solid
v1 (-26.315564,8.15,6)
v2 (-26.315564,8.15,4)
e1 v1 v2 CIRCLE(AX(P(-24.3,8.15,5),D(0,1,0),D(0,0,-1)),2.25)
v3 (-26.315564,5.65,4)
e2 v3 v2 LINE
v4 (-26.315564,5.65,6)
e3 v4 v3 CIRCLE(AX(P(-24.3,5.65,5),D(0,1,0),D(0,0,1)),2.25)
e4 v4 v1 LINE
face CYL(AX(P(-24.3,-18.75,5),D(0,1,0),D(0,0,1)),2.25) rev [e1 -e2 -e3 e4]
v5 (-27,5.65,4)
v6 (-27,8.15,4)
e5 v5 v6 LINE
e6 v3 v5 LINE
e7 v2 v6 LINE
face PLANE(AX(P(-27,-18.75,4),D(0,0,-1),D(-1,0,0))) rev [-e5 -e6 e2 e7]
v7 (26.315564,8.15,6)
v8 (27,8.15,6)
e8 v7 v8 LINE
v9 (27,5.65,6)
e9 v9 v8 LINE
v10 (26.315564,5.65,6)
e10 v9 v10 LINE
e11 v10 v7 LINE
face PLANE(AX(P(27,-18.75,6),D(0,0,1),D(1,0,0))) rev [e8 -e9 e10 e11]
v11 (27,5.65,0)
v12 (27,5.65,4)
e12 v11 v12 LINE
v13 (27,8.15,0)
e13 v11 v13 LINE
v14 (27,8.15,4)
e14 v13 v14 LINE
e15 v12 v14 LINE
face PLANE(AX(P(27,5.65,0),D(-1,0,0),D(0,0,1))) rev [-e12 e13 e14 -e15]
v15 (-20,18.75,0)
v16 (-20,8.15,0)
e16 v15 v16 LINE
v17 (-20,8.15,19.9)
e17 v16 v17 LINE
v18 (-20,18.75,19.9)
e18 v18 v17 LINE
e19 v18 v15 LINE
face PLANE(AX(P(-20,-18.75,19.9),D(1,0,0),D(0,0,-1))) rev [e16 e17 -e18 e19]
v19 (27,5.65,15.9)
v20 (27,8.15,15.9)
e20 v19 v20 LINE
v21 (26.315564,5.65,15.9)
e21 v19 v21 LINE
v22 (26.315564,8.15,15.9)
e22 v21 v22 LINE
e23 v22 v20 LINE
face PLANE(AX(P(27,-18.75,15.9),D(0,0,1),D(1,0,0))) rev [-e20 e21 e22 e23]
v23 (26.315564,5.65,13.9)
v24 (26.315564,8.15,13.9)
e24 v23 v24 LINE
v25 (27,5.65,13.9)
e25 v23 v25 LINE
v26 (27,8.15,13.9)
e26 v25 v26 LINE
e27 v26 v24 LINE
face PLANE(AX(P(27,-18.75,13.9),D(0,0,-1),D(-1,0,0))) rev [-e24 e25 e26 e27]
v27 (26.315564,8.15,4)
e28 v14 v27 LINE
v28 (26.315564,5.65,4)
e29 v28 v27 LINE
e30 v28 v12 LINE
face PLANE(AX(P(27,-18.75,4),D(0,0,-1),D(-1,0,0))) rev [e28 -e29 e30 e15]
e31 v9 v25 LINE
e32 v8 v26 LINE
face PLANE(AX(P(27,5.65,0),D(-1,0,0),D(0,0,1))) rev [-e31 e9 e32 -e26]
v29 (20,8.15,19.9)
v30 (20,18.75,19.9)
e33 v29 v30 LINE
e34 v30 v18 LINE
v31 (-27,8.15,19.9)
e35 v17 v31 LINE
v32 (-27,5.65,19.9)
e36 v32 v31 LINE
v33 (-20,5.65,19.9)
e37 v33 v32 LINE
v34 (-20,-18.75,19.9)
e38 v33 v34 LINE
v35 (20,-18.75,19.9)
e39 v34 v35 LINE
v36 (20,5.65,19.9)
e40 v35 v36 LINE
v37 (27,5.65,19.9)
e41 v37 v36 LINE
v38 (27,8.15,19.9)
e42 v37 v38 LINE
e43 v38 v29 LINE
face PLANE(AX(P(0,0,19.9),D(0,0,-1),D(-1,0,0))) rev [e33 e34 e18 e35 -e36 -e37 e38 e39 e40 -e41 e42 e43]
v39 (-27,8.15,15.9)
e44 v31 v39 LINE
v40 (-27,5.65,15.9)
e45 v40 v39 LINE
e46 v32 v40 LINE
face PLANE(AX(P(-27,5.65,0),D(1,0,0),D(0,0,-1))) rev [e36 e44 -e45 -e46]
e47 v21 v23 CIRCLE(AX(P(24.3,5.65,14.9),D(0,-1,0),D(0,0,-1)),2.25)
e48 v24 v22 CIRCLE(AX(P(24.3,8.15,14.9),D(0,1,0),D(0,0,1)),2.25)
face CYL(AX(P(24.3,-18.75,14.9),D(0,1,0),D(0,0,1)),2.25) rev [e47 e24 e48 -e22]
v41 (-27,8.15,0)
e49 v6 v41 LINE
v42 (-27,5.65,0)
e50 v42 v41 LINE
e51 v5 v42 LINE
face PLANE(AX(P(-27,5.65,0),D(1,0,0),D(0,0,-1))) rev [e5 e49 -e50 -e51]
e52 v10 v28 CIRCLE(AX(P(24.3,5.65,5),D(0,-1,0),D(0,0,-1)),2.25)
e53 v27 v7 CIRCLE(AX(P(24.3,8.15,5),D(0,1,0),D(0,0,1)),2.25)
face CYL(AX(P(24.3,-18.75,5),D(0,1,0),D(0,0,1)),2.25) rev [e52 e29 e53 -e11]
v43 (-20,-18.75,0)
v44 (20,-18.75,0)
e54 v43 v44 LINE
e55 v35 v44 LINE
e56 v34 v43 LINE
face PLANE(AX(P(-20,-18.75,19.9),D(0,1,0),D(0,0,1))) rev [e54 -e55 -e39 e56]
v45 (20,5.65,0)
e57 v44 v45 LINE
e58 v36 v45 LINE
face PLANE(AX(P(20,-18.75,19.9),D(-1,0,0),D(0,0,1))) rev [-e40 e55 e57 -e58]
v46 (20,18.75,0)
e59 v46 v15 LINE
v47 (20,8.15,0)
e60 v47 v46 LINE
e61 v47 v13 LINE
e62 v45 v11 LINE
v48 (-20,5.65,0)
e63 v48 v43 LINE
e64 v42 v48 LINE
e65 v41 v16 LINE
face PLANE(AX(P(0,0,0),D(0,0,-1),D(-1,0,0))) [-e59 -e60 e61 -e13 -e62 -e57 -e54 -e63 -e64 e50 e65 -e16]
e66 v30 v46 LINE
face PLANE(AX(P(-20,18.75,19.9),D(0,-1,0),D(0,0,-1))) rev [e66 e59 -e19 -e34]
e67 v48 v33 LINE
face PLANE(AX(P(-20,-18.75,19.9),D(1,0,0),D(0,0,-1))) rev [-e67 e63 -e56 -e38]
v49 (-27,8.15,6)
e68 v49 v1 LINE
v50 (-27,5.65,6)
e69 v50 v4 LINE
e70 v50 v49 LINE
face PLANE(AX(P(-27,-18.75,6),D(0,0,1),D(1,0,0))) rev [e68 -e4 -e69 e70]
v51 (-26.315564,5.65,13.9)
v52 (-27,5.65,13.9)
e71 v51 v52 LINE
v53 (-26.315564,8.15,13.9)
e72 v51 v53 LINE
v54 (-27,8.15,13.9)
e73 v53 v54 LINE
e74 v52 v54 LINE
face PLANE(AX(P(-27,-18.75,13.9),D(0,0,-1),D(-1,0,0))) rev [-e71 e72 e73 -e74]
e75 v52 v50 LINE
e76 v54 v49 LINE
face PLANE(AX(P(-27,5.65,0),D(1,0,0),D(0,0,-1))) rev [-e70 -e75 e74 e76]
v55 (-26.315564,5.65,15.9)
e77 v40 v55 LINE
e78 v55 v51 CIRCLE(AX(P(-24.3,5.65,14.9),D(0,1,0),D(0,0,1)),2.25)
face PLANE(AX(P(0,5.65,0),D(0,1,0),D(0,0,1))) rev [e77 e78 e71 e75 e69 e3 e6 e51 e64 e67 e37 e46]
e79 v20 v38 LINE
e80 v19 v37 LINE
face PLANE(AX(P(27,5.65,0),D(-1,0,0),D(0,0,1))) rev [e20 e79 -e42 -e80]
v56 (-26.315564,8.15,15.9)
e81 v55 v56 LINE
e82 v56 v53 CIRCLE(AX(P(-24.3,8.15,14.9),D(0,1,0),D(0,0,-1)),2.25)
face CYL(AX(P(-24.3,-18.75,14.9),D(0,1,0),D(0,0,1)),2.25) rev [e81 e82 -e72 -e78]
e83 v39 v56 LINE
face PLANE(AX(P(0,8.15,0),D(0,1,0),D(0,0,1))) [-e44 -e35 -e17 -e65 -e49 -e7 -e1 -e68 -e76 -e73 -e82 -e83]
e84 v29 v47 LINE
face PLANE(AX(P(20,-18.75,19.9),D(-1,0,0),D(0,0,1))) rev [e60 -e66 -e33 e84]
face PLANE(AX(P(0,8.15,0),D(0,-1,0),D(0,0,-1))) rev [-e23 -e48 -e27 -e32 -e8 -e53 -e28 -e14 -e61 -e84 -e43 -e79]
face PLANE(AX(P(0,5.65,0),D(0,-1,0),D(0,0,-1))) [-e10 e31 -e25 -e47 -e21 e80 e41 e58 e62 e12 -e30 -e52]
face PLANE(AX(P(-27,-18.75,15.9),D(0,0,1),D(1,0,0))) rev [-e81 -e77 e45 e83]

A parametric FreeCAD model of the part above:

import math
import FreeCAD as App
import Part
import Sketcher
Q = App.Units.Quantity


def add_polygon(sketch, points):
    """Adds a closed chain of lines whose ends are joined by coincident constraints."""
    first, n = sketch.GeometryCount, len(points)
    for a, b in zip(points, points[1:] + points[:1]):
        sketch.addGeometry(Part.LineSegment(App.Vector(*a, 0), App.Vector(*b, 0)), False)
    for i in range(n):
        sketch.addConstraint(Sketcher.Constraint("Coincident", first + i, 2, first + (i + 1) % n, 1))

doc = App.newDocument("Part")
params = doc.addObject("Spreadsheet::Sheet", "Params")
for row, (alias, value) in enumerate([
    ("sketch1_width", "40 mm"),
    ("sketch1_height", "37.5 mm"),
    ("pad1_length", "19.9 mm"),
    ("sketch2_width", "7 mm"),
    ("sketch2_height", "19.9 mm"),
    ("pad2_length", "2.5 mm"),
    ("sketch3_height", "2 mm"),
    ("sketch3_radius", "2.25 mm"),
], start=1):
    params.set(f"A{row}", alias)
    params.set(f"B{row}", "=" + value)
    params.setAlias(f"B{row}", alias)

body = doc.addObject("PartDesign::Body", "Body")

sketch1 = doc.addObject("Sketcher::SketchObject", "Sketch")
body.addObject(sketch1)
sketch1.AttachmentSupport = (doc.XY_Plane, [""])
sketch1.MapMode = "FlatFace"
add_polygon(sketch1, [(-20, 19), (-20, -19), (20, -19), (20, 19)])
sketch1.addConstraint([
    Sketcher.Constraint("Vertical", 0),
    Sketcher.Constraint("Horizontal", 1),
    Sketcher.Constraint("Vertical", 2),
    Sketcher.Constraint("Horizontal", 3),
    Sketcher.Constraint("Symmetric", 0, 2, 2, 2, -1, 1),
    Sketcher.Constraint("DistanceX", 1, 1, 1, 2, Q("40 mm")),
    Sketcher.Constraint("DistanceY", 0, 2, 0, 1, Q("37.5 mm")),
])
sketch1.setExpression("Constraints[9]", "Params.sketch1_width")
sketch1.setExpression("Constraints[10]", "Params.sketch1_height")
pad1 = doc.addObject("PartDesign::Pad", "Pad")
body.addObject(pad1)
pad1.Profile = sketch1
pad1.setExpression("Length", "Params.pad1_length")

sketch2 = doc.addObject("Sketcher::SketchObject", "Sketch001")
body.addObject(sketch2)
sketch2.AttachmentSupport = (doc.XZ_Plane, [""])
sketch2.MapMode = "FlatFace"
sketch2.AttachmentOffset = App.Placement(App.Vector(0, 0, -8.15), App.Rotation())
add_polygon(sketch2, [(-20, 0), (-20, 20), (-27, 20), (-27, 0)])
add_polygon(sketch2, [(27, 0), (27, 20), (20, 20), (20, 0)])
sketch2.addConstraint([
    Sketcher.Constraint("Vertical", 0),
    Sketcher.Constraint("Horizontal", 1),
    Sketcher.Constraint("Vertical", 2),
    Sketcher.Constraint("Horizontal", 3),
    Sketcher.Constraint("Vertical", 4),
    Sketcher.Constraint("Horizontal", 5),
    Sketcher.Constraint("Vertical", 6),
    Sketcher.Constraint("Horizontal", 7),
    Sketcher.Constraint("Symmetric", 3, 2, 6, 2, -1, 1),
    Sketcher.Constraint("Symmetric", 1, 2, 4, 2, -2),
    Sketcher.Constraint("PointOnObject", 2, 2, -1),
    Sketcher.Constraint("DistanceX", 1, 2, 1, 1, Q("7 mm")),
    Sketcher.Constraint("DistanceY", 0, 1, 0, 2, Q("19.9 mm")),
    Sketcher.Constraint("DistanceX", 0, 2, -1, 1, Q("20 mm")),
])
sketch2.setExpression("Constraints[19]", "Params.sketch2_width")
sketch2.setExpression("Constraints[20]", "Params.sketch2_height")
pad2 = doc.addObject("PartDesign::Pad", "Pad001")
body.addObject(pad2)
pad2.Profile = sketch2
pad2.setExpression("Length", "Params.pad2_length")

sketch3 = doc.addObject("Sketcher::SketchObject", "Sketch002")
body.addObject(sketch3)
sketch3.AttachmentSupport = (doc.XZ_Plane, [""])
sketch3.MapMode = "FlatFace"
sketch3.AttachmentOffset = App.Placement(App.Vector(0, 0, -8.15), App.Rotation())
sketch3.addGeometry([
    Part.LineSegment(App.Vector(26.3, 15.9, 0), App.Vector(27, 15.9, 0)),
    Part.LineSegment(App.Vector(27, 15.9, 0), App.Vector(27, 13.9, 0)),
    Part.LineSegment(App.Vector(27, 13.9, 0), App.Vector(26.3, 13.9, 0)),
    Part.ArcOfCircle(Part.Circle(App.Vector(24.3, 14.9, 0), App.Vector(0, 0, 1), 2.2), math.radians(26), math.radians(334)),
    Part.LineSegment(App.Vector(26.3, 6, 0), App.Vector(27, 6, 0)),
    Part.LineSegment(App.Vector(27, 6, 0), App.Vector(27, 4, 0)),
    Part.LineSegment(App.Vector(27, 4, 0), App.Vector(26.3, 4, 0)),
    Part.ArcOfCircle(Part.Circle(App.Vector(24.3, 5, 0), App.Vector(0, 0, 1), 2.2), math.radians(26), math.radians(334)),
    Part.LineSegment(App.Vector(-27, 13.9, 0), App.Vector(-27, 15.9, 0)),
    Part.LineSegment(App.Vector(-27, 15.9, 0), App.Vector(-26.3, 15.9, 0)),
    Part.ArcOfCircle(Part.Circle(App.Vector(-24.3, 14.9, 0), App.Vector(0, 0, 1), 2.2), math.radians(-154), math.radians(154)),
    Part.LineSegment(App.Vector(-26.3, 13.9, 0), App.Vector(-27, 13.9, 0)),
    Part.LineSegment(App.Vector(-27, 4, 0), App.Vector(-27, 6, 0)),
    Part.LineSegment(App.Vector(-27, 6, 0), App.Vector(-26.3, 6, 0)),
    Part.ArcOfCircle(Part.Circle(App.Vector(-24.3, 5, 0), App.Vector(0, 0, 1), 2.2), math.radians(-154), math.radians(154)),
    Part.LineSegment(App.Vector(-26.3, 4, 0), App.Vector(-27, 4, 0)),
], False)
sketch3.addConstraint([
    Sketcher.Constraint("Coincident", 0, 2, 1, 1),
    Sketcher.Constraint("Coincident", 1, 2, 2, 1),
    Sketcher.Constraint("Coincident", 2, 2, 3, 2),
    Sketcher.Constraint("Coincident", 3, 1, 0, 1),
    Sketcher.Constraint("Coincident", 4, 2, 5, 1),
    Sketcher.Constraint("Coincident", 5, 2, 6, 1),
    Sketcher.Constraint("Coincident", 6, 2, 7, 2),
    Sketcher.Constraint("Coincident", 7, 1, 4, 1),
    Sketcher.Constraint("Coincident", 8, 2, 9, 1),
    Sketcher.Constraint("Coincident", 9, 2, 10, 2),
    Sketcher.Constraint("Coincident", 10, 1, 11, 1),
    Sketcher.Constraint("Coincident", 11, 2, 8, 1),
    Sketcher.Constraint("Coincident", 12, 2, 13, 1),
    Sketcher.Constraint("Coincident", 13, 2, 14, 2),
    Sketcher.Constraint("Coincident", 14, 1, 15, 1),
    Sketcher.Constraint("Coincident", 15, 2, 12, 1),
    Sketcher.Constraint("Horizontal", 0),
    Sketcher.Constraint("Vertical", 1),
    Sketcher.Constraint("Horizontal", 2),
    Sketcher.Constraint("Horizontal", 4),
    Sketcher.Constraint("Vertical", 5),
    Sketcher.Constraint("Horizontal", 6),
    Sketcher.Constraint("Vertical", 8),
    Sketcher.Constraint("Horizontal", 9),
    Sketcher.Constraint("Horizontal", 11),
    Sketcher.Constraint("Vertical", 12),
    Sketcher.Constraint("Horizontal", 13),
    Sketcher.Constraint("Horizontal", 15),
    Sketcher.Constraint("Equal", 3, 7),
    Sketcher.Constraint("Equal", 7, 10),
    Sketcher.Constraint("Equal", 10, 14),
    Sketcher.Constraint("Symmetric", 3, 3, 10, 3, -2),
    Sketcher.Constraint("Symmetric", 7, 3, 14, 3, -2),
    Sketcher.Constraint("Symmetric", 0, 2, 8, 2, -2),
    Sketcher.Constraint("Symmetric", 4, 2, 12, 2, -2),
    Sketcher.Constraint("Horizontal", 2, 2, 10, 1),
    Sketcher.Constraint("Horizontal", 6, 2, 14, 1),
    Sketcher.Constraint("Vertical", 3, 3, 7, 3),
    Sketcher.Constraint("Vertical", 2, 2, 3, 1),
    Sketcher.Constraint("Vertical", 1, 2, 4, 2),
    Sketcher.Constraint("Vertical", 3, 1, 6, 2),
    Sketcher.Constraint("Vertical", 6, 2, 7, 1),
    Sketcher.Constraint("DistanceY", 1, 2, 1, 1, Q("2 mm")),
    Sketcher.Constraint("Radius", 3, Q("2.25 mm")),
    Sketcher.Constraint("DistanceY", -1, 1, 7, 3, Q("5 mm")),
    Sketcher.Constraint("DistanceX", -1, 1, 0, 2, Q("27 mm")),
    Sketcher.Constraint("DistanceX", -1, 1, 3, 3, Q("24.3 mm")),
    Sketcher.Constraint("DistanceY", -1, 1, 3, 3, Q("14.9 mm")),
])
sketch3.setExpression("Constraints[42]", "Params.sketch3_height")
sketch3.setExpression("Constraints[43]", "Params.sketch3_radius")
pocket1 = doc.addObject("PartDesign::Pocket", "Pocket")
body.addObject(pocket1)
pocket1.Profile = sketch3
pocket1.Type = "ThroughAll"
pocket1.Reversed = True

doc.recompute()
